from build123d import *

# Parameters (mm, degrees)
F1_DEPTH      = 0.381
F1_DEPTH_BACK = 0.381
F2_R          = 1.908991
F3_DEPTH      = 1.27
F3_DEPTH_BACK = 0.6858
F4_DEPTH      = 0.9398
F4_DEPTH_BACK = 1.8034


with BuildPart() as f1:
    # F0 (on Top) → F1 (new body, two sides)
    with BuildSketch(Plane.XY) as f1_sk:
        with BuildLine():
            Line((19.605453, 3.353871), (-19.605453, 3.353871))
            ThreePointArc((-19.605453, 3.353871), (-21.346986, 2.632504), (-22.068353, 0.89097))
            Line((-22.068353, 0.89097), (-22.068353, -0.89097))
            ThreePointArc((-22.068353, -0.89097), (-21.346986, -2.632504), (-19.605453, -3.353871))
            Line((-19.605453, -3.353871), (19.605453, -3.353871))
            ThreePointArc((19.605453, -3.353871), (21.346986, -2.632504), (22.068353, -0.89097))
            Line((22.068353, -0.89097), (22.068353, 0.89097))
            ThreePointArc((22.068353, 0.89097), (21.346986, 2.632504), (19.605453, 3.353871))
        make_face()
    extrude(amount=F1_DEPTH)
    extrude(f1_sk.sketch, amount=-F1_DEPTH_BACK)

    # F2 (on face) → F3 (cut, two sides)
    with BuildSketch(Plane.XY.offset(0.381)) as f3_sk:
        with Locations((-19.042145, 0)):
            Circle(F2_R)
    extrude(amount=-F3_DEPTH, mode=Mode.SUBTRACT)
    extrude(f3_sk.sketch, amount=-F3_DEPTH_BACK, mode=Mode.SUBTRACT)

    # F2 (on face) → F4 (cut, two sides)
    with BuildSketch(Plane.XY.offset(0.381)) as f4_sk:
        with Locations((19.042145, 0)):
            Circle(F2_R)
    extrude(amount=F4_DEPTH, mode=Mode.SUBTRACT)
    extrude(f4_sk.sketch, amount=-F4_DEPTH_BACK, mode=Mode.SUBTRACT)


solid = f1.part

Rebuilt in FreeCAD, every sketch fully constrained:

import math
import FreeCAD as App
import Part
import Sketcher

V = App.Vector
Q = App.Units.Quantity

doc = App.newDocument("Part")
body = doc.addObject("PartDesign::Body", "Body")

# Sketch on XY plane
sketch1 = body.newObject("Sketcher::SketchObject", "Sketch")
sketch1.AttachmentSupport = (doc.getObject("XY_Plane"), [""])
sketch1.MapMode = "FlatFace"
sketch1.addGeometry(Part.LineSegment(V(19.6, 3.4, 0), V(-19.6, 3.4, 0)), False)
sketch1.addGeometry(Part.ArcOfCircle(Part.Circle(V(-19.6, 0.9, 0), V(0, 0, 1), 2.5), math.radians(90), math.radians(180)), False)
sketch1.addGeometry(Part.LineSegment(V(-22.1, 0.9, 0), V(-22.1, -0.9, 0)), False)
sketch1.addGeometry(Part.ArcOfCircle(Part.Circle(V(-19.6, -0.9, 0), V(0, 0, 1), 2.5), math.radians(180), math.radians(270)), False)
sketch1.addGeometry(Part.LineSegment(V(-19.6, -3.4, 0), V(19.6, -3.4, 0)), False)
sketch1.addGeometry(Part.ArcOfCircle(Part.Circle(V(19.6, -0.9, 0), V(0, 0, 1), 2.5), math.radians(-90), math.radians(0)), False)
sketch1.addGeometry(Part.LineSegment(V(22.1, -0.9, 0), V(22.1, 0.9, 0)), False)
sketch1.addGeometry(Part.ArcOfCircle(Part.Circle(V(19.6, 0.9, 0), V(0, 0, 1), 2.5), math.radians(0), math.radians(90)), False)
sketch1.addConstraint(Sketcher.Constraint("Tangent", 0, 2, 1, 1))
sketch1.addConstraint(Sketcher.Constraint("Tangent", 1, 2, 2, 1))
sketch1.addConstraint(Sketcher.Constraint("Tangent", 2, 2, 3, 1))
sketch1.addConstraint(Sketcher.Constraint("Tangent", 3, 2, 4, 1))
sketch1.addConstraint(Sketcher.Constraint("Tangent", 4, 2, 5, 1))
sketch1.addConstraint(Sketcher.Constraint("Tangent", 5, 2, 6, 1))
sketch1.addConstraint(Sketcher.Constraint("Tangent", 6, 2, 7, 1))
sketch1.addConstraint(Sketcher.Constraint("Tangent", 7, 2, 0, 1))
sketch1.addConstraint(Sketcher.Constraint("Horizontal", 0))
sketch1.addConstraint(Sketcher.Constraint("Vertical", 2))
sketch1.addConstraint(Sketcher.Constraint("Horizontal", 4))
sketch1.addConstraint(Sketcher.Constraint("Vertical", 6))
sketch1.addConstraint(Sketcher.Constraint("Equal", 1, 3))
sketch1.addConstraint(Sketcher.Constraint("Equal", 3, 5))
sketch1.addConstraint(Sketcher.Constraint("Equal", 5, 7))
sketch1.addConstraint(Sketcher.Constraint("Symmetric", 1, 3, 5, 3, -1, 1))
sketch1.addConstraint(Sketcher.Constraint("Radius", 1, Q("2.462901 mm")))
sketch1.addConstraint(Sketcher.Constraint("DistanceY", 2, 2, 2, 1, Q("1.78194 mm")))
sketch1.addConstraint(Sketcher.Constraint("DistanceX", 0, 2, 0, 1, Q("39.210906 mm")))
pad1 = body.newObject("PartDesign::Pad", "Pad")
pad1.Profile = sketch1
pad1.Type = "TwoLengths"
pad1.Length = Q("0.015 in")
pad1.Length2 = Q("0.015 in")

# Sketch on XY plane
sketch2 = body.newObject("Sketcher::SketchObject", "Sketch001")
sketch2.AttachmentSupport = (doc.getObject("XY_Plane"), [""])
sketch2.MapMode = "FlatFace"
sketch2.AttachmentOffset = App.Placement(V(0, 0, 0.015 * 25.4), App.Rotation())
sketch2.addGeometry(Part.Circle(V(-19, 0, 0), V(0, 0, 1), 1.9), False)
sketch2.addConstraint(Sketcher.Constraint("PointOnObject", 0, 3, -1))
sketch2.addConstraint(Sketcher.Constraint("Diameter", 0, Q("3.817982 mm")))
sketch2.addConstraint(Sketcher.Constraint("DistanceX", 0, 3, -1, 1, Q("19.042145 mm")))
pocket1 = body.newObject("PartDesign::Pocket", "Pocket")
pocket1.Profile = sketch2
pocket1.Length = Q("0.05 in")
pocket2 = body.newObject("PartDesign::Pocket", "Pocket001")
pocket2.Profile = sketch2
pocket2.Length = Q("0.027 in")

# Sketch on XY plane
sketch3 = body.newObject("Sketcher::SketchObject", "Sketch002")
sketch3.AttachmentSupport = (doc.getObject("XY_Plane"), [""])
sketch3.MapMode = "FlatFace"
sketch3.AttachmentOffset = App.Placement(V(0, 0, 0.015 * 25.4), App.Rotation())
sketch3.addGeometry(Part.Circle(V(19, 0, 0), V(0, 0, 1), 1.9), False)
sketch3.addConstraint(Sketcher.Constraint("PointOnObject", 0, 3, -1))
sketch3.addConstraint(Sketcher.Constraint("Diameter", 0, Q("3.817982 mm")))
sketch3.addConstraint(Sketcher.Constraint("DistanceX", -1, 1, 0, 3, Q("19.042145 mm")))
pocket3 = body.newObject("PartDesign::Pocket", "Pocket002")
pocket3.Profile = sketch3
pocket3.Type = "ThroughAll"
pocket3.Midplane = True

doc.recompute()
